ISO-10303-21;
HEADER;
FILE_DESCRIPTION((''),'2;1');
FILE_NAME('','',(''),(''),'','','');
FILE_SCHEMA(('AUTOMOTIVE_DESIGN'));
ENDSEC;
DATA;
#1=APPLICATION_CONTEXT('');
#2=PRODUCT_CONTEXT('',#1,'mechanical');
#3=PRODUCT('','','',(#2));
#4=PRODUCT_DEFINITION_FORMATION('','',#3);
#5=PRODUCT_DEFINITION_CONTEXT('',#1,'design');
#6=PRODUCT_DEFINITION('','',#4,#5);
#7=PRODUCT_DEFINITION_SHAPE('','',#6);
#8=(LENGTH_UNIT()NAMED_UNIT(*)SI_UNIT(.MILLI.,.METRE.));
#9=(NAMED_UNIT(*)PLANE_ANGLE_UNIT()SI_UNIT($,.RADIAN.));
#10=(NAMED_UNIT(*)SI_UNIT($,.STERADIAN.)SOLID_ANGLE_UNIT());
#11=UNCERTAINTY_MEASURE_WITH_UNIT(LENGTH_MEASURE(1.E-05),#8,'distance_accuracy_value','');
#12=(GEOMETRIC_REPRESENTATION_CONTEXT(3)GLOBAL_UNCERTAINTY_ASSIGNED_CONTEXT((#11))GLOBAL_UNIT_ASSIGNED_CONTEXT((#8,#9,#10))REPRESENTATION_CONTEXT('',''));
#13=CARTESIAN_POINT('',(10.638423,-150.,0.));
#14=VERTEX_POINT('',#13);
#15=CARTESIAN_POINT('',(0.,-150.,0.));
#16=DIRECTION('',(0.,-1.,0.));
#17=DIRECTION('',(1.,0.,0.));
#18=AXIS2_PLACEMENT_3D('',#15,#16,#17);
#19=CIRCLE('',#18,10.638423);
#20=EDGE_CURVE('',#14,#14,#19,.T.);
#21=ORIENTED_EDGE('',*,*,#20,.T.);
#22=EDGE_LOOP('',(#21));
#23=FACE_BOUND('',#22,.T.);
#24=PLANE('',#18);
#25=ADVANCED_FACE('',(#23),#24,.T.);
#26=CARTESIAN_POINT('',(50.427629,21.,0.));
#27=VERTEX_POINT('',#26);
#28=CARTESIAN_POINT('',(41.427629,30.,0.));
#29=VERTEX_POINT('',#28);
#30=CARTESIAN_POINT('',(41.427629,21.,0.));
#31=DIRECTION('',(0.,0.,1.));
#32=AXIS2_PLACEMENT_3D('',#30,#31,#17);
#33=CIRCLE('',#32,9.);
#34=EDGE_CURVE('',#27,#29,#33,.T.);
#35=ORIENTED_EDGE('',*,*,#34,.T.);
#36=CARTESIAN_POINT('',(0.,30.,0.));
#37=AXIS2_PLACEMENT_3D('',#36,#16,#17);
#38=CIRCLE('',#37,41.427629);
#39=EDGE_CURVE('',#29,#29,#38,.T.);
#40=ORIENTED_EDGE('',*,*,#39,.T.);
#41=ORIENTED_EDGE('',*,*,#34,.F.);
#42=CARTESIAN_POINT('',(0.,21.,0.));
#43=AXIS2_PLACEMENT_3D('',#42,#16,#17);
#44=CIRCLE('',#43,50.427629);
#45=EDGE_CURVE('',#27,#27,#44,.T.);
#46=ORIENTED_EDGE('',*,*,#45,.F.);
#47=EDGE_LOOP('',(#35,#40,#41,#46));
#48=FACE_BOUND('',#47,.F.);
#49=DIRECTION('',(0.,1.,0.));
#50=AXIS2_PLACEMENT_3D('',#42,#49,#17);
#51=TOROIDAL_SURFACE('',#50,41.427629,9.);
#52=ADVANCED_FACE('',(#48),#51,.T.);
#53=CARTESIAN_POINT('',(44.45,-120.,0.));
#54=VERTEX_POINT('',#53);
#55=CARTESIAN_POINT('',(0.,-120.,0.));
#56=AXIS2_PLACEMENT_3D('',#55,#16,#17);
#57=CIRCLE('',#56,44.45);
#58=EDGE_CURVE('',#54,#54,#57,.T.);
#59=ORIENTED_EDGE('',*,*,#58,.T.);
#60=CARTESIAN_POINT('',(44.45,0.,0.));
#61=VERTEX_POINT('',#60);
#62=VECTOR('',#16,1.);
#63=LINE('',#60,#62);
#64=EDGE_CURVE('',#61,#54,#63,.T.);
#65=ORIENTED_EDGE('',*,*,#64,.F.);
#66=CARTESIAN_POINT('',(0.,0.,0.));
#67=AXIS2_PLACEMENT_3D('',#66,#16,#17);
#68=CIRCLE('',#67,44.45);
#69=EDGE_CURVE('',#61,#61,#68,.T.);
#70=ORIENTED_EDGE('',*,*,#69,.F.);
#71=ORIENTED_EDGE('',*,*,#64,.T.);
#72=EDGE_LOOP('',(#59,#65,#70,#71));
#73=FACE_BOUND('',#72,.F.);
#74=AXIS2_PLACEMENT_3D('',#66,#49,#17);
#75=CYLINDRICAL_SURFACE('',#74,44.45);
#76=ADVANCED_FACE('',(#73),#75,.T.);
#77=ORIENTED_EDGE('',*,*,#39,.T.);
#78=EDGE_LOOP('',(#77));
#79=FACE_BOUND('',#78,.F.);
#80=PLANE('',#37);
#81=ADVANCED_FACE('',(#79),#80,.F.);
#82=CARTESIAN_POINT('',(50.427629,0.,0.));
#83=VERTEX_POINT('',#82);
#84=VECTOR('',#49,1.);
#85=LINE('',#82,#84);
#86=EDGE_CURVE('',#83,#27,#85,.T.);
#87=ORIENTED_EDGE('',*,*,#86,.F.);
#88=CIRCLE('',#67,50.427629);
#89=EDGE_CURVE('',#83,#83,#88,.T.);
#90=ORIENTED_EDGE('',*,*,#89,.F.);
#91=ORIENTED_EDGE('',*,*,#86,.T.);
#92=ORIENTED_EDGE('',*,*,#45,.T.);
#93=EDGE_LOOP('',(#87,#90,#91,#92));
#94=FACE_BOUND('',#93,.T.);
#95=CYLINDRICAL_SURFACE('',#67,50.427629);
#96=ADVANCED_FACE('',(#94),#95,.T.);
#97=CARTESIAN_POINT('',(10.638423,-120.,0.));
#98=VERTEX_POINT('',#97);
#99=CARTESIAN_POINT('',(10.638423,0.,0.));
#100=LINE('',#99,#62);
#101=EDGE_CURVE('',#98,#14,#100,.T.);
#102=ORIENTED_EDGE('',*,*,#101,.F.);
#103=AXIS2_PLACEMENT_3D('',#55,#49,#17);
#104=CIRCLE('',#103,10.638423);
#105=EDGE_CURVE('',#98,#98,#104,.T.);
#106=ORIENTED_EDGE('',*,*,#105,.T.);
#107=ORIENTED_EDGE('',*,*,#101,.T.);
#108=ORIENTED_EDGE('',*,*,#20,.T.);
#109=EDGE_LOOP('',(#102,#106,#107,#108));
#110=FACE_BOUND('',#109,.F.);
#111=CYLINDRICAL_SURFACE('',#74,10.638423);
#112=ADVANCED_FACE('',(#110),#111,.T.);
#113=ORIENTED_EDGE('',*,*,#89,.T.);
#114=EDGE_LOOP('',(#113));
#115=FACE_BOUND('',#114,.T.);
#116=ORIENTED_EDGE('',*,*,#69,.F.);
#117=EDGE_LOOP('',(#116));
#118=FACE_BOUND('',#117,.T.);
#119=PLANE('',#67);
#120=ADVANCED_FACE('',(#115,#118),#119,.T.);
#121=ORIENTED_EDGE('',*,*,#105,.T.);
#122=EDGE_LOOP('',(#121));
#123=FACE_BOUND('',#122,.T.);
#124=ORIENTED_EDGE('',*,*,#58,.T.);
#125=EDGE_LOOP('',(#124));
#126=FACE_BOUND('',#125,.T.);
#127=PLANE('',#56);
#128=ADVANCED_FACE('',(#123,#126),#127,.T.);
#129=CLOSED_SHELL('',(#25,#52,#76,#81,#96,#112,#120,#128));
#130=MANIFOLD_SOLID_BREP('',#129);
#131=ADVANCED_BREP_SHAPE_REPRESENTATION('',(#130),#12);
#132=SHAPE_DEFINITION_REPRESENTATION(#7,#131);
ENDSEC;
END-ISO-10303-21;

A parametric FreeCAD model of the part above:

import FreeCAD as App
import Part
import Sketcher

V = App.Vector


def edges_at(feature, points):
    """Names of the edges that pass closest to the given points."""
    edges = feature.Shape.Edges
    near = lambda p: min(range(len(edges)), key=lambda i: edges[i].distToShape(Part.Vertex(*p))[0])
    return sorted({f"Edge{near(p) + 1}" for p in points})

doc = App.newDocument("Part")
body = doc.addObject("PartDesign::Body", "Body")

# Sketch on XZ plane
sketch1 = body.newObject("Sketcher::SketchObject", "Sketch")
sketch1.AttachmentSupport = (doc.getObject("XZ_Plane"), [""])
sketch1.MapMode = "FlatFace"
sketch1.addGeometry(Part.Circle(V(0, 0, 0), V(0, 0, 1), 44), False)
sketch1.addConstraint([
    Sketcher.Constraint("Coincident", 0, 3, -1, 1),
    Sketcher.Constraint("Diameter", 0, 88.9),
])
pad1 = body.newObject("PartDesign::Pad", "Pad")
pad1.Profile = sketch1
pad1.Length = 120

# Sketch on XZ plane
sketch2 = body.newObject("Sketcher::SketchObject", "Sketch001")
sketch2.AttachmentSupport = (doc.getObject("XZ_Plane"), [""])
sketch2.MapMode = "FlatFace"
sketch2.addGeometry(Part.Circle(V(0, 0, 0), V(0, 0, 1), 50), False)
sketch2.addConstraint([
    Sketcher.Constraint("Coincident", 0, 3, -1, 1),
    Sketcher.Constraint("Diameter", 0, 100.855258),
])
pad2 = body.newObject("PartDesign::Pad", "Pad001")
pad2.Profile = sketch2
pad2.Length = 30
pad2.Reversed = True
doc.recompute()

fillet = body.newObject("PartDesign::Fillet", "Fillet")
fillet.Base = (pad2, edges_at(pad2, [(-50.428, 30, 0)]))
fillet.Radius = 9

# Sketch on XZ plane
sketch3 = body.newObject("Sketcher::SketchObject", "Sketch002")
sketch3.AttachmentSupport = (doc.getObject("XZ_Plane"), [""])
sketch3.MapMode = "FlatFace"
sketch3.addGeometry(Part.Circle(V(0, 0, 0), V(0, 0, 1), 11), False)
sketch3.addConstraint([
    Sketcher.Constraint("Coincident", 0, 3, -1, 1),
    Sketcher.Constraint("Diameter", 0, 21.276846),
])
pad3 = body.newObject("PartDesign::Pad", "Pad002")
pad3.Profile = sketch3
pad3.Length = 150

doc.recompute()
